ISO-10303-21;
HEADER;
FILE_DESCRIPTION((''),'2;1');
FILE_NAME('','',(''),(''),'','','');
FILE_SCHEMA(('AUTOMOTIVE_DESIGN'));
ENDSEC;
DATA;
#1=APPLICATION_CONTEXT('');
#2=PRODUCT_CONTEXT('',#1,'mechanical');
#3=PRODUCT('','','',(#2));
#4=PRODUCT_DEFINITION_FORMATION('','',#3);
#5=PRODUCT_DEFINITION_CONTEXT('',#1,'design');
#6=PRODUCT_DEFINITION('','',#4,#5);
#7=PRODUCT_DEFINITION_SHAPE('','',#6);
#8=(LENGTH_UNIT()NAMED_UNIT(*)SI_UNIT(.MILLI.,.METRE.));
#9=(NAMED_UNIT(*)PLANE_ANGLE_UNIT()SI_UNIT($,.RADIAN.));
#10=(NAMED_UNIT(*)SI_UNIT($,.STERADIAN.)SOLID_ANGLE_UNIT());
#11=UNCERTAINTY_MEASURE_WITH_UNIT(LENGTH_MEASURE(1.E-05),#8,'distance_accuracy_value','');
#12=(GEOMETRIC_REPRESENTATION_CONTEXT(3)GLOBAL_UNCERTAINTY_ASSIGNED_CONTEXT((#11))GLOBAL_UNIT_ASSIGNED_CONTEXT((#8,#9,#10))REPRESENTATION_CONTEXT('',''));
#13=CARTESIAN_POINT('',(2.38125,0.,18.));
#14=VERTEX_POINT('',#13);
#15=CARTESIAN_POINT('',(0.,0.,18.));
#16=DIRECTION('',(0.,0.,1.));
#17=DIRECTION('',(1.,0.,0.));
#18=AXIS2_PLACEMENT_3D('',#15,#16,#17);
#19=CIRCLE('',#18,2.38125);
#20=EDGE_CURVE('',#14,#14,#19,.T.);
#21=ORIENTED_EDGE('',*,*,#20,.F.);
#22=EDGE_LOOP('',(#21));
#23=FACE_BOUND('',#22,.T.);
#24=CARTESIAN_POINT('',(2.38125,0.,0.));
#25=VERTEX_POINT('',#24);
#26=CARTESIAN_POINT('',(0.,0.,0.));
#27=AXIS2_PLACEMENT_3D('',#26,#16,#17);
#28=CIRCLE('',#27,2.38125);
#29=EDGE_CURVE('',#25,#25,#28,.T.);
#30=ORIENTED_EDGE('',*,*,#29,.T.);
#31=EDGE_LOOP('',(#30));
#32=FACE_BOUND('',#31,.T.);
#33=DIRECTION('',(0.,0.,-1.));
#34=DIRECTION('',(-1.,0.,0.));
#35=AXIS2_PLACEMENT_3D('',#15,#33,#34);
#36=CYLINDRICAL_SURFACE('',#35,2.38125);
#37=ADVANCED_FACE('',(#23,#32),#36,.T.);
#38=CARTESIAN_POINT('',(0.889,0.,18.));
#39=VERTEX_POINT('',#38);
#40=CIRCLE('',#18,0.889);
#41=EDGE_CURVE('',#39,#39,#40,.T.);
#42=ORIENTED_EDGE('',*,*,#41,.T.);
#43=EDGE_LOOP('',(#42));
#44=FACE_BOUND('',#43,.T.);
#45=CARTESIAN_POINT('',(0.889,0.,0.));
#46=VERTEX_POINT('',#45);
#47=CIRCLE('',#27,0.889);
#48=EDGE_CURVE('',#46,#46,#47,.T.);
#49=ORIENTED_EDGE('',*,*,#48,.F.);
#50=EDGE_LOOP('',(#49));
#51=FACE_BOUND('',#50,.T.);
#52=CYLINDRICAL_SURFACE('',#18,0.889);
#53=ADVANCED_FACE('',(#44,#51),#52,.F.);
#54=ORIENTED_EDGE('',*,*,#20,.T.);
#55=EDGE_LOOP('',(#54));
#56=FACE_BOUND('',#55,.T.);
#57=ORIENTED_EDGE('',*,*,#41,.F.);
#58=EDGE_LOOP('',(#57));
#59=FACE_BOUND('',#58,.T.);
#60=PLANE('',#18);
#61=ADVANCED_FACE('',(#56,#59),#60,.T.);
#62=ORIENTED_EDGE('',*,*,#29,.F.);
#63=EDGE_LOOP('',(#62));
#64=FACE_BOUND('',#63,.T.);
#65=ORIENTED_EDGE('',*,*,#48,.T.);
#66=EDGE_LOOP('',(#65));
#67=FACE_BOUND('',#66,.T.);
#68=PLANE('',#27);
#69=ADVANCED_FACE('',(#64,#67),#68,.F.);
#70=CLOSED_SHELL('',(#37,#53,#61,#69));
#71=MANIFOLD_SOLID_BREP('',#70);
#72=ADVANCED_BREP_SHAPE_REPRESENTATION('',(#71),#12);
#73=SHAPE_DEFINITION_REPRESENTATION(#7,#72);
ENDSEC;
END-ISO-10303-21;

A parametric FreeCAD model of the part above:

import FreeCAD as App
import Part
import Sketcher

V = App.Vector
Q = App.Units.Quantity

doc = App.newDocument("Part")
body = doc.addObject("PartDesign::Body", "Body")

sketch1 = body.newObject("Sketcher::SketchObject", "Sketch")
sketch1.AttachmentSupport = (doc.getObject("XY_Plane"), [""])
sketch1.MapMode = "FlatFace"
sketch1.addGeometry(Part.Circle(V(0, 0, 0), V(0, 0, 1), 2.4), False)
sketch1.addConstraint([
    Sketcher.Constraint("Coincident", 0, 3, -1, 1),
    Sketcher.Constraint("Diameter", 0, Q("0.1875 in")),
])
pad1 = body.newObject("PartDesign::Pad", "Pad")
pad1.Profile = sketch1
pad1.Length = 18

sketch2 = body.newObject("Sketcher::SketchObject", "Sketch001")
sketch2.AttachmentSupport = (doc.getObject("XY_Plane"), [""])
sketch2.MapMode = "FlatFace"
sketch2.AttachmentOffset = App.Placement(V(0, 0, 18), App.Rotation())
sketch2.addGeometry(Part.Circle(V(0, 0, 0), V(0, 0, 1), 0.9), False)
sketch2.addConstraint([
    Sketcher.Constraint("Coincident", 0, 3, -1, 1),
    Sketcher.Constraint("Diameter", 0, Q("0.07 in")),
])
doc.recompute()
hole = body.newObject("PartDesign::Hole", "Hole")
hole.Profile = sketch2
hole.ThreadType = "None"
hole.Diameter = Q("0.07 in")
hole.DepthType = "ThroughAll"

doc.recompute()
